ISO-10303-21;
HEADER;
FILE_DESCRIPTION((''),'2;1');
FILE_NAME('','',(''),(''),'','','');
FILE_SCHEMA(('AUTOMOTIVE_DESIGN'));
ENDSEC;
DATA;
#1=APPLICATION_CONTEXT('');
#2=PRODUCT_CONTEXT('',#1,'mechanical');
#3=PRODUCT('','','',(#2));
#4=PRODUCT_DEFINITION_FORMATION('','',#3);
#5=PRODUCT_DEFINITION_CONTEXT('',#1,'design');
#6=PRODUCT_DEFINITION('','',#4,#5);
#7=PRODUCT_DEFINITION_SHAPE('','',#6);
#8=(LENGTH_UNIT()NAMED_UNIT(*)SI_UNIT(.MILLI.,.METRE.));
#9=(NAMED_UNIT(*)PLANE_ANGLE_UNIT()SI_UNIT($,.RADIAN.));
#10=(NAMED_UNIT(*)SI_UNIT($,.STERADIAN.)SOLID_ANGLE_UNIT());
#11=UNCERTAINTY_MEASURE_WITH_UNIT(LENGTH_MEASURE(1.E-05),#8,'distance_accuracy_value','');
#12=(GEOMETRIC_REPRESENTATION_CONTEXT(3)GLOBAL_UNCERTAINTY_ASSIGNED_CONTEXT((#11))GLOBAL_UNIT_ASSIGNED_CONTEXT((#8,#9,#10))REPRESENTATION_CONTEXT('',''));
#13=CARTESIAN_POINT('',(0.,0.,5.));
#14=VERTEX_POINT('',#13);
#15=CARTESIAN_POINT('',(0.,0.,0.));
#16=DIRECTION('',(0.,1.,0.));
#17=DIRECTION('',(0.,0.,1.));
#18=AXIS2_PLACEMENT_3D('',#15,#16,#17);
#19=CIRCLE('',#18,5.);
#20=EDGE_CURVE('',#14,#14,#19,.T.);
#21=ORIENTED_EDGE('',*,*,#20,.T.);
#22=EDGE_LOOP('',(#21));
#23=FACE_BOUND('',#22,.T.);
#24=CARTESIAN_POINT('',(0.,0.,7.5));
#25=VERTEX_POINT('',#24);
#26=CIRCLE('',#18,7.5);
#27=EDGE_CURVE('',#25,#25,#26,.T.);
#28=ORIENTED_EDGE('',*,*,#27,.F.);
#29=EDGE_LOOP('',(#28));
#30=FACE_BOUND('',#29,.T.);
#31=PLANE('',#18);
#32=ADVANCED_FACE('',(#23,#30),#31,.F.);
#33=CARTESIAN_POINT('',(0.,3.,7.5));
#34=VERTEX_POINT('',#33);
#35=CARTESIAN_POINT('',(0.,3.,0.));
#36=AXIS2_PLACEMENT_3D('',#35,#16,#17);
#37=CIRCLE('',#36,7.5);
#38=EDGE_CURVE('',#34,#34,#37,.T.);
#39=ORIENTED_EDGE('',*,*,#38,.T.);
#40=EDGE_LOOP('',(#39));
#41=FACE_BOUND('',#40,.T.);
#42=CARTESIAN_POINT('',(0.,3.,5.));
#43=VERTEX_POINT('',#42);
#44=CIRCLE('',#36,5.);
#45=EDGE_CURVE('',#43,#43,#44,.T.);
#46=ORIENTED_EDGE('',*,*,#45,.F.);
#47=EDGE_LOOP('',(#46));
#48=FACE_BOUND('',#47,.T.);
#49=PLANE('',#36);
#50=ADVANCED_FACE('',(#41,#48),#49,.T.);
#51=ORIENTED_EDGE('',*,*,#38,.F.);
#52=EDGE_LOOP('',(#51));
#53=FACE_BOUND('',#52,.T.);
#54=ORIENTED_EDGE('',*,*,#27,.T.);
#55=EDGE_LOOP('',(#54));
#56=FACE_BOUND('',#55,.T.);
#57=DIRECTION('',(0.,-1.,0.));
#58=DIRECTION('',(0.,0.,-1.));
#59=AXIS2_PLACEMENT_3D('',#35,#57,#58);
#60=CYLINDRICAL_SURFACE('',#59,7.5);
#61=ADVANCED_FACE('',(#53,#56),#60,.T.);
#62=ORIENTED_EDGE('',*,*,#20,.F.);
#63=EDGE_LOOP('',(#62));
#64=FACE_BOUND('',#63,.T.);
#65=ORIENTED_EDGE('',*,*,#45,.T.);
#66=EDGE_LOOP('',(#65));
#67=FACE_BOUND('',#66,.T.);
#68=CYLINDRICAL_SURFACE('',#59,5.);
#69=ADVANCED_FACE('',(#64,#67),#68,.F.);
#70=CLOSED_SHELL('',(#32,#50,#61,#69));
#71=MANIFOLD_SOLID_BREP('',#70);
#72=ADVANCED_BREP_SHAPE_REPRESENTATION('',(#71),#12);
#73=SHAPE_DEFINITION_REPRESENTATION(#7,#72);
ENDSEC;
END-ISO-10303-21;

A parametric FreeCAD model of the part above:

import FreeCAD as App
import Part
import Sketcher

doc = App.newDocument("Part")
body = doc.addObject("PartDesign::Body", "Body")

sketch1 = doc.addObject("Sketcher::SketchObject", "Sketch")
body.addObject(sketch1)
sketch1.AttachmentSupport = (doc.XZ_Plane, [""])
sketch1.MapMode = "FlatFace"
sketch1.addGeometry([
    Part.Circle(App.Vector(0, 0, 0), App.Vector(0, 0, 1), 8),
    Part.Circle(App.Vector(0, 0, 0), App.Vector(0, 0, 1), 5),
], False)
sketch1.addConstraint([
    Sketcher.Constraint("Coincident", 0, 3, -1, 1),
    Sketcher.Constraint("Coincident", 1, 3, -1, 1),
    Sketcher.Constraint("Diameter", 0, 15.0),
    Sketcher.Constraint("Diameter", 1, 10.0),
])
pad1 = doc.addObject("PartDesign::Pad", "Pad")
body.addObject(pad1)
pad1.Profile = sketch1
pad1.Length = 3
pad1.Reversed = True

doc.recompute()
